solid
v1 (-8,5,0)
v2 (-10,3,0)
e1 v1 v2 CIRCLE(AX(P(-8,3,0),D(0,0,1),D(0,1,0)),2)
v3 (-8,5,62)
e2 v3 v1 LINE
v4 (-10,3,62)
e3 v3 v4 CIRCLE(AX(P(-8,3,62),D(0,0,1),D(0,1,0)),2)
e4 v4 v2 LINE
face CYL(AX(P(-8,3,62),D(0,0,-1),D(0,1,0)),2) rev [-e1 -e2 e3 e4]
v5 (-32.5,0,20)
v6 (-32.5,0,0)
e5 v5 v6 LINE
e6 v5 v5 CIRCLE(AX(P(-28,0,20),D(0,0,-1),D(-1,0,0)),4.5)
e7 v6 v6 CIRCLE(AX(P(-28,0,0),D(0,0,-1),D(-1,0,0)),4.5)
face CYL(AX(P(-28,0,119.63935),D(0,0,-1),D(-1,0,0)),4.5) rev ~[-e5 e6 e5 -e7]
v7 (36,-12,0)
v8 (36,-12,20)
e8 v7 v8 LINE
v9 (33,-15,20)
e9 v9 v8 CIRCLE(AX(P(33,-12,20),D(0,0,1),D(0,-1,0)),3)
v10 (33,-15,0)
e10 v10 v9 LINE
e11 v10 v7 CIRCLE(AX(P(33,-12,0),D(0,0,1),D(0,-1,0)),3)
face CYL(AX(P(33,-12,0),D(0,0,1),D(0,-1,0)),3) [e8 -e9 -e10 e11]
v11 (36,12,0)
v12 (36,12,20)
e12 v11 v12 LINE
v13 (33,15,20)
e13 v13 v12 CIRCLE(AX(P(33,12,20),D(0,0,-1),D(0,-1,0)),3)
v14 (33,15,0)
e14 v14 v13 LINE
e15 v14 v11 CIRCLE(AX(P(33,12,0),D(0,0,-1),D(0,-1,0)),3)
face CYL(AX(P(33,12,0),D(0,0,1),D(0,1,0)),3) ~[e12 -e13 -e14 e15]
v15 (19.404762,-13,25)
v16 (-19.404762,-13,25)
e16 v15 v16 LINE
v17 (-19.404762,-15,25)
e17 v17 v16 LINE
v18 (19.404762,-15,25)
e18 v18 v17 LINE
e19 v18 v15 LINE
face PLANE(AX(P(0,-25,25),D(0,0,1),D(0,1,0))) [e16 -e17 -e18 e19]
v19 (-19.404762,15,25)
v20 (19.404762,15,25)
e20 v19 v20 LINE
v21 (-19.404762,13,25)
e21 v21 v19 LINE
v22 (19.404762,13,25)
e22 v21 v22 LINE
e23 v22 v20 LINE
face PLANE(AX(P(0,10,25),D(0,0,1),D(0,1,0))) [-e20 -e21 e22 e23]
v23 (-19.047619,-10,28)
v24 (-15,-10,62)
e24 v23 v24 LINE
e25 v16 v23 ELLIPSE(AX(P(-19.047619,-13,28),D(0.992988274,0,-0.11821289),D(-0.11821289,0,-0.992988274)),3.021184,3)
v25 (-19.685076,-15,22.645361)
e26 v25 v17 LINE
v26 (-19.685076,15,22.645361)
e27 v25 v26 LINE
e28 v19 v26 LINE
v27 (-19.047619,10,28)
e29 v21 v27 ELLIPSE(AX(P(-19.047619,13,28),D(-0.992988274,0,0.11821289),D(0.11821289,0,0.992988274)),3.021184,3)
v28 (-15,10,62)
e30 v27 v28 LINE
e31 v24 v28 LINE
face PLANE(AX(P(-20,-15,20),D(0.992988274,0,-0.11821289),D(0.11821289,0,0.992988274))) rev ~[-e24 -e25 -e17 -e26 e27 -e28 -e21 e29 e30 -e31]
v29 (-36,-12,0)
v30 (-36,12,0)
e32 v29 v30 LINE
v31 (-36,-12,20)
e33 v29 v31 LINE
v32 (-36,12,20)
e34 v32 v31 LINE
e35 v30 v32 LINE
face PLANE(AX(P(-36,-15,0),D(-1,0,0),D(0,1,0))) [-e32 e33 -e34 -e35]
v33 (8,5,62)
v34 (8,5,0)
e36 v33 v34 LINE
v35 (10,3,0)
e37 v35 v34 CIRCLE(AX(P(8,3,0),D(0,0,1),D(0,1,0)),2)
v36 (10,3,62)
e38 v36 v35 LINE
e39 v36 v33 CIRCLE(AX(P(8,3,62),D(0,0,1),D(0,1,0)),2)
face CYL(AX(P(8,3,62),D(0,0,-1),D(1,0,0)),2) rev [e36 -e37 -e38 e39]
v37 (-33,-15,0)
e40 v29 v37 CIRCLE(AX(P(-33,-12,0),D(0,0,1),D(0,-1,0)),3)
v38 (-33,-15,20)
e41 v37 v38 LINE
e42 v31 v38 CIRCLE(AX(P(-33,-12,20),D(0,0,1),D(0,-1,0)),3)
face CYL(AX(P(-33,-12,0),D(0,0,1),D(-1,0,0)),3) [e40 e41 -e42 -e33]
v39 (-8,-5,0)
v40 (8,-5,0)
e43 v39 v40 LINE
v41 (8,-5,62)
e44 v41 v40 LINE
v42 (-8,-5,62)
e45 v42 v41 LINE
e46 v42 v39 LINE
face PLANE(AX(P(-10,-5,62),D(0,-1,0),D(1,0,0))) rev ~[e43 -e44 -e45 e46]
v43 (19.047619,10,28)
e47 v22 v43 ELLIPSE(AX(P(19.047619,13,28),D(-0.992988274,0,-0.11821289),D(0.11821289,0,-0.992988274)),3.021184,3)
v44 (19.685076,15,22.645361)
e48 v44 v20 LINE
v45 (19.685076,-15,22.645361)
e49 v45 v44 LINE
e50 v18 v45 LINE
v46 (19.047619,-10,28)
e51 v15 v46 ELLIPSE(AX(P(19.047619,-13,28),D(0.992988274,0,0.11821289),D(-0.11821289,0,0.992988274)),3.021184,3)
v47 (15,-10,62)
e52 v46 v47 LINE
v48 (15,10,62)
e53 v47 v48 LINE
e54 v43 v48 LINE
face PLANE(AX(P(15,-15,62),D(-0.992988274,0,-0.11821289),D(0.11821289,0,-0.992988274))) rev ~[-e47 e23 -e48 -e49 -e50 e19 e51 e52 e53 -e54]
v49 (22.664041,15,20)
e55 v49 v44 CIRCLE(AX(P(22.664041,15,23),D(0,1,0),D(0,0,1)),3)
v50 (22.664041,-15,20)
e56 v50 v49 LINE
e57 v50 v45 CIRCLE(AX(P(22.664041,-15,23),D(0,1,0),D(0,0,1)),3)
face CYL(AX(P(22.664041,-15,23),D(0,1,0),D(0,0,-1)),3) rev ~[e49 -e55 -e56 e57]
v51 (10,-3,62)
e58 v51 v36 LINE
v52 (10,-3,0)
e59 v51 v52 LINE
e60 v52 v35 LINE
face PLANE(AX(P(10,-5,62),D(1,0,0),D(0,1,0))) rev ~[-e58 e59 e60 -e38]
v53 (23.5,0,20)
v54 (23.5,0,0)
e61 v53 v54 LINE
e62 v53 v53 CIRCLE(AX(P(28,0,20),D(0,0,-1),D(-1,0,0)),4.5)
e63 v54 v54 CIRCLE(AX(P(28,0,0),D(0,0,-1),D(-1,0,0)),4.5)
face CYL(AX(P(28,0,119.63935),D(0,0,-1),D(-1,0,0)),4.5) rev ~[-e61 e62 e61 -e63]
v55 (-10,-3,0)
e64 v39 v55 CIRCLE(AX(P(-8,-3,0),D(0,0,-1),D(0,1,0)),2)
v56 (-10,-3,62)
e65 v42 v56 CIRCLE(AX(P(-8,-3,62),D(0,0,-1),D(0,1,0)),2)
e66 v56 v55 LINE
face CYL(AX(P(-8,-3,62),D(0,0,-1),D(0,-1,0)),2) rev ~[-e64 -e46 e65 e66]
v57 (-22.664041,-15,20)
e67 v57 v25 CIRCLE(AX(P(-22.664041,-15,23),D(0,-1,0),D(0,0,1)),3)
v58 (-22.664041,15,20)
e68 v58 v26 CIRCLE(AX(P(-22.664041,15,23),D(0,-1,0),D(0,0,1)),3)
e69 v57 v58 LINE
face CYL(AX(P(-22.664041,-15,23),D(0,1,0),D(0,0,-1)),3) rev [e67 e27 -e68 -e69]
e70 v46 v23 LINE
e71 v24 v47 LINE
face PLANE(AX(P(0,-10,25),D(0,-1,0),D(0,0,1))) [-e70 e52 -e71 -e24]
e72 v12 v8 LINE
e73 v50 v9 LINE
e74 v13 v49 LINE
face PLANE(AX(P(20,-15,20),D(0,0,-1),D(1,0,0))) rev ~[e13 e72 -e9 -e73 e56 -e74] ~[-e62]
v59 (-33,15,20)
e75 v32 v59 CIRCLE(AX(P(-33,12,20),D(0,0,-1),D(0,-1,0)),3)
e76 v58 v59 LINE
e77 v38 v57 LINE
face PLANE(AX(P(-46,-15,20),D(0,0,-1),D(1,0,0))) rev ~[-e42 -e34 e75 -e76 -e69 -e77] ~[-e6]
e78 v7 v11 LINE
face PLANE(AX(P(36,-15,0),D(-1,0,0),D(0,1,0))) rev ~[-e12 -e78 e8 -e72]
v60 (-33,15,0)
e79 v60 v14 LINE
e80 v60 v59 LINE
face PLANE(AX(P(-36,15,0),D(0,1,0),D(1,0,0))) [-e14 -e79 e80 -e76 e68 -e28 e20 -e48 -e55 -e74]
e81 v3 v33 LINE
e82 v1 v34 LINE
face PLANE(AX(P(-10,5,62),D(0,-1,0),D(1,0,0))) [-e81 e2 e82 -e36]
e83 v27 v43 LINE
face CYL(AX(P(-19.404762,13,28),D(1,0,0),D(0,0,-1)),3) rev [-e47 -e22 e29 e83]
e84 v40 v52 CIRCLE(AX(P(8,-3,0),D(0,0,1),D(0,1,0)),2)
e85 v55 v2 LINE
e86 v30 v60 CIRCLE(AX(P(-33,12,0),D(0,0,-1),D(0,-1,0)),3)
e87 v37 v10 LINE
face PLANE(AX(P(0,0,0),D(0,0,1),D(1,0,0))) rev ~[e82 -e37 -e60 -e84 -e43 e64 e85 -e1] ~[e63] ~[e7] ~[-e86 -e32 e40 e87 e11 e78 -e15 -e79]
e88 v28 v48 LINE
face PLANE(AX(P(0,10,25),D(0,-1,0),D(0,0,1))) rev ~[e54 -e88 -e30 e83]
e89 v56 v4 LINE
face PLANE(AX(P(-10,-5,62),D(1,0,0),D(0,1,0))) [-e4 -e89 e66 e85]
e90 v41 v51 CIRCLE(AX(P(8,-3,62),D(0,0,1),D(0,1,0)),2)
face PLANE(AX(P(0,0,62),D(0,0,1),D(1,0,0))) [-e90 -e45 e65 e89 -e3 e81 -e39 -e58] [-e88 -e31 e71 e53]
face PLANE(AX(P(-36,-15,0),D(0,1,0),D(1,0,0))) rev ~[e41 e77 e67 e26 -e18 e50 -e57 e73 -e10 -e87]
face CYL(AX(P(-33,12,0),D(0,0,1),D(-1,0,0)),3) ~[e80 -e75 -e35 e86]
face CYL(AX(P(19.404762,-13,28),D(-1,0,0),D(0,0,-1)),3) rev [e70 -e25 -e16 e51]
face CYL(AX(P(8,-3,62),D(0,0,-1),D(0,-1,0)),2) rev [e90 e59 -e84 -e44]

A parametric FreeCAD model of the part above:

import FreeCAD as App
import Part
import Sketcher

V = App.Vector


def edges_at(feature, points):
    """Names of the edges that pass closest to the given points."""
    edges = feature.Shape.Edges
    near = lambda p: min(range(len(edges)), key=lambda i: edges[i].distToShape(Part.Vertex(*p))[0])
    return sorted({f"Edge{near(p) + 1}" for p in points})

doc = App.newDocument("Part")
params = doc.addObject("Spreadsheet::Sheet", "Params")
for row, (alias, value) in enumerate([
    ("sketch1_width", "72 mm"),
    ("sketch1_height", "30 mm"),
    ("pad1_length", "62 mm"),
    ("sketch2_width", "31 mm"),
    ("sketch2_width2", "26 mm"),
    ("sketch2_height", "52 mm"),
    ("sketch2_height2", "10 mm"),
    ("sketch3_width", "15 mm"),
    ("sketch3_height", "47 mm"),
    ("sketch4_width", "20 mm"),
    ("sketch4_height", "10 mm"),
    ("sketch5_diameter", "9 mm"),
    ("hole_diameter", "9 mm"),
    ("fillet_radius", "3 mm"),
    ("fillet2_radius", "3 mm"),
    ("fillet3_radius", "3 mm"),
    ("fillet4_radius", "2 mm"),
], start=1):
    params.set(f"A{row}", alias)
    params.set(f"B{row}", "=" + value)
    params.setAlias(f"B{row}", alias)

body = doc.addObject("PartDesign::Body", "Body")

# Sketch on XY plane
sketch1 = body.newObject("Sketcher::SketchObject", "Sketch")
sketch1.AttachmentSupport = (doc.getObject("XY_Plane"), [""])
sketch1.MapMode = "FlatFace"
sketch1.addGeometry(Part.LineSegment(V(-36, 15, 0), V(-36, -15, 0)), False)
sketch1.addGeometry(Part.LineSegment(V(-36, -15, 0), V(36, -15, 0)), False)
sketch1.addGeometry(Part.LineSegment(V(36, -15, 0), V(36, 15, 0)), False)
sketch1.addGeometry(Part.LineSegment(V(36, 15, 0), V(-36, 15, 0)), False)
sketch1.addConstraint(Sketcher.Constraint("Coincident", 0, 2, 1, 1))
sketch1.addConstraint(Sketcher.Constraint("Coincident", 1, 2, 2, 1))
sketch1.addConstraint(Sketcher.Constraint("Coincident", 2, 2, 3, 1))
sketch1.addConstraint(Sketcher.Constraint("Coincident", 3, 2, 0, 1))
sketch1.addConstraint(Sketcher.Constraint("Vertical", 0))
sketch1.addConstraint(Sketcher.Constraint("Horizontal", 1))
sketch1.addConstraint(Sketcher.Constraint("Vertical", 2))
sketch1.addConstraint(Sketcher.Constraint("Horizontal", 3))
sketch1.addConstraint(Sketcher.Constraint("Symmetric", 0, 2, 2, 2, -1, 1))
sketch1.addConstraint(Sketcher.Constraint("DistanceX", 1, 1, 1, 2, 72.0))
sketch1.addConstraint(Sketcher.Constraint("DistanceY", 0, 2, 0, 1, 30.0))
sketch1.setExpression("Constraints[9]", "Params.sketch1_width")
sketch1.setExpression("Constraints[10]", "Params.sketch1_height")
pad1 = body.newObject("PartDesign::Pad", "Pad")
pad1.Profile = sketch1
pad1.setExpression("Length", "Params.pad1_length")

# Sketch on XZ plane
sketch2 = body.newObject("Sketcher::SketchObject", "Sketch001")
sketch2.AttachmentSupport = (doc.getObject("XZ_Plane"), [""])
sketch2.MapMode = "FlatFace"
sketch2.AttachmentOffset = App.Placement(V(0, 0, 15), App.Rotation())
sketch2.addGeometry(Part.LineSegment(V(-15, 72, 0), V(-46, 72, 0)), False)
sketch2.addGeometry(Part.LineSegment(V(-46, 72, 0), V(-46, 20, 0)), False)
sketch2.addGeometry(Part.LineSegment(V(-46, 20, 0), V(-20, 20, 0)), False)
sketch2.addGeometry(Part.LineSegment(V(-20, 20, 0), V(-15, 62, 0)), False)
sketch2.addGeometry(Part.LineSegment(V(-15, 62, 0), V(-15, 72, 0)), False)
sketch2.addGeometry(Part.LineSegment(V(46, 72, 0), V(15, 72, 0)), False)
sketch2.addGeometry(Part.LineSegment(V(15, 72, 0), V(15, 62, 0)), False)
sketch2.addGeometry(Part.LineSegment(V(15, 62, 0), V(20, 20, 0)), False)
sketch2.addGeometry(Part.LineSegment(V(20, 20, 0), V(46, 20, 0)), False)
sketch2.addGeometry(Part.LineSegment(V(46, 20, 0), V(46, 72, 0)), False)
sketch2.addConstraint(Sketcher.Constraint("Coincident", 0, 2, 1, 1))
sketch2.addConstraint(Sketcher.Constraint("Coincident", 1, 2, 2, 1))
sketch2.addConstraint(Sketcher.Constraint("Coincident", 2, 2, 3, 1))
sketch2.addConstraint(Sketcher.Constraint("Coincident", 3, 2, 4, 1))
sketch2.addConstraint(Sketcher.Constraint("Coincident", 4, 2, 0, 1))
sketch2.addConstraint(Sketcher.Constraint("Coincident", 5, 2, 6, 1))
sketch2.addConstraint(Sketcher.Constraint("Coincident", 6, 2, 7, 1))
sketch2.addConstraint(Sketcher.Constraint("Coincident", 7, 2, 8, 1))
sketch2.addConstraint(Sketcher.Constraint("Coincident", 8, 2, 9, 1))
sketch2.addConstraint(Sketcher.Constraint("Coincident", 9, 2, 5, 1))
sketch2.addConstraint(Sketcher.Constraint("Horizontal", 0))
sketch2.addConstraint(Sketcher.Constraint("Vertical", 1))
sketch2.addConstraint(Sketcher.Constraint("Horizontal", 2))
sketch2.addConstraint(Sketcher.Constraint("Vertical", 4))
sketch2.addConstraint(Sketcher.Constraint("Horizontal", 5))
sketch2.addConstraint(Sketcher.Constraint("Vertical", 6))
sketch2.addConstraint(Sketcher.Constraint("Horizontal", 8))
sketch2.addConstraint(Sketcher.Constraint("Vertical", 9))
sketch2.addConstraint(Sketcher.Constraint("Symmetric", 4, 2, 5, 2, -2))
sketch2.addConstraint(Sketcher.Constraint("Symmetric", 2, 2, 7, 2, -2))
sketch2.addConstraint(Sketcher.Constraint("Horizontal", 3, 2, 6, 2))
sketch2.addConstraint(Sketcher.Constraint("Equal", 0, 5))
sketch2.addConstraint(Sketcher.Constraint("DistanceX", 0, 2, 0, 1, 31.0))
sketch2.addConstraint(Sketcher.Constraint("DistanceX", 2, 1, 2, 2, 26.0))
sketch2.addConstraint(Sketcher.Constraint("DistanceY", 1, 2, 1, 1, 52.0))
sketch2.addConstraint(Sketcher.Constraint("DistanceY", 4, 1, 4, 2, 10.0))
sketch2.addConstraint(Sketcher.Constraint("DistanceX", 0, 2, -1, 1, 46.0))
sketch2.addConstraint(Sketcher.Constraint("DistanceY", -1, 1, 0, 2, 72.0))
sketch2.setExpression("Constraints[22]", "Params.sketch2_width")
sketch2.setExpression("Constraints[23]", "Params.sketch2_width2")
sketch2.setExpression("Constraints[24]", "Params.sketch2_height")
sketch2.setExpression("Constraints[25]", "Params.sketch2_height2")
pocket1 = body.newObject("PartDesign::Pocket", "Pocket")
pocket1.Profile = sketch2
pocket1.Type = "ThroughAll"

# Sketch on YZ plane
sketch3 = body.newObject("Sketcher::SketchObject", "Sketch002")
sketch3.AttachmentSupport = (doc.getObject("YZ_Plane"), [""])
sketch3.MapMode = "FlatFace"
sketch3.addGeometry(Part.LineSegment(V(-25, 72, 0), V(-25, 25, 0)), False)
sketch3.addGeometry(Part.LineSegment(V(-25, 25, 0), V(-10, 25, 0)), False)
sketch3.addGeometry(Part.LineSegment(V(-10, 25, 0), V(-10, 72, 0)), False)
sketch3.addGeometry(Part.LineSegment(V(-10, 72, 0), V(-25, 72, 0)), False)
sketch3.addGeometry(Part.LineSegment(V(10, 72, 0), V(10, 25, 0)), False)
sketch3.addGeometry(Part.LineSegment(V(10, 25, 0), V(25, 25, 0)), False)
sketch3.addGeometry(Part.LineSegment(V(25, 25, 0), V(25, 72, 0)), False)
sketch3.addGeometry(Part.LineSegment(V(25, 72, 0), V(10, 72, 0)), False)
sketch3.addConstraint(Sketcher.Constraint("Coincident", 0, 2, 1, 1))
sketch3.addConstraint(Sketcher.Constraint("Coincident", 1, 2, 2, 1))
sketch3.addConstraint(Sketcher.Constraint("Coincident", 2, 2, 3, 1))
sketch3.addConstraint(Sketcher.Constraint("Coincident", 3, 2, 0, 1))
sketch3.addConstraint(Sketcher.Constraint("Coincident", 4, 2, 5, 1))
sketch3.addConstraint(Sketcher.Constraint("Coincident", 5, 2, 6, 1))
sketch3.addConstraint(Sketcher.Constraint("Coincident", 6, 2, 7, 1))
sketch3.addConstraint(Sketcher.Constraint("Coincident", 7, 2, 4, 1))
sketch3.addConstraint(Sketcher.Constraint("Vertical", 0))
sketch3.addConstraint(Sketcher.Constraint("Horizontal", 1))
sketch3.addConstraint(Sketcher.Constraint("Vertical", 2))
sketch3.addConstraint(Sketcher.Constraint("Horizontal", 3))
sketch3.addConstraint(Sketcher.Constraint("Vertical", 4))
sketch3.addConstraint(Sketcher.Constraint("Horizontal", 5))
sketch3.addConstraint(Sketcher.Constraint("Vertical", 6))
sketch3.addConstraint(Sketcher.Constraint("Horizontal", 7))
sketch3.addConstraint(Sketcher.Constraint("Symmetric", 1, 2, 4, 2, -2))
sketch3.addConstraint(Sketcher.Constraint("Symmetric", 3, 2, 6, 2, -2))
sketch3.addConstraint(Sketcher.Constraint("DistanceX", 1, 1, 1, 2, 15.0))
sketch3.addConstraint(Sketcher.Constraint("DistanceY", 0, 2, 0, 1, 47.0))
sketch3.addConstraint(Sketcher.Constraint("DistanceX", 0, 2, -1, 1, 25.0))
sketch3.addConstraint(Sketcher.Constraint("DistanceY", -1, 1, 0, 2, 25.0))
sketch3.setExpression("Constraints[18]", "Params.sketch3_width")
sketch3.setExpression("Constraints[19]", "Params.sketch3_height")
pocket2 = body.newObject("PartDesign::Pocket", "Pocket001")
pocket2.Profile = sketch3
pocket2.Type = "ThroughAll"
pocket2.Midplane = True

# Sketch on XY plane
sketch4 = body.newObject("Sketcher::SketchObject", "Sketch003")
sketch4.AttachmentSupport = (doc.getObject("XY_Plane"), [""])
sketch4.MapMode = "FlatFace"
sketch4.AttachmentOffset = App.Placement(V(0, 0, 62), App.Rotation())
sketch4.addGeometry(Part.LineSegment(V(-10, 5, 0), V(-10, -5, 0)), False)
sketch4.addGeometry(Part.LineSegment(V(-10, -5, 0), V(10, -5, 0)), False)
sketch4.addGeometry(Part.LineSegment(V(10, -5, 0), V(10, 5, 0)), False)
sketch4.addGeometry(Part.LineSegment(V(10, 5, 0), V(-10, 5, 0)), False)
sketch4.addConstraint(Sketcher.Constraint("Coincident", 0, 2, 1, 1))
sketch4.addConstraint(Sketcher.Constraint("Coincident", 1, 2, 2, 1))
sketch4.addConstraint(Sketcher.Constraint("Coincident", 2, 2, 3, 1))
sketch4.addConstraint(Sketcher.Constraint("Coincident", 3, 2, 0, 1))
sketch4.addConstraint(Sketcher.Constraint("Vertical", 0))
sketch4.addConstraint(Sketcher.Constraint("Horizontal", 1))
sketch4.addConstraint(Sketcher.Constraint("Vertical", 2))
sketch4.addConstraint(Sketcher.Constraint("Horizontal", 3))
sketch4.addConstraint(Sketcher.Constraint("Symmetric", 0, 2, 2, 2, -1, 1))
sketch4.addConstraint(Sketcher.Constraint("DistanceX", 1, 1, 1, 2, 20.0))
sketch4.addConstraint(Sketcher.Constraint("DistanceY", 0, 2, 0, 1, 10.0))
sketch4.setExpression("Constraints[9]", "Params.sketch4_width")
sketch4.setExpression("Constraints[10]", "Params.sketch4_height")
pocket3 = body.newObject("PartDesign::Pocket", "Pocket002")
pocket3.Profile = sketch4
pocket3.Type = "ThroughAll"

# Sketch on XY plane
sketch5 = body.newObject("Sketcher::SketchObject", "Sketch004")
sketch5.AttachmentSupport = (doc.getObject("XY_Plane"), [""])
sketch5.MapMode = "FlatFace"
sketch5.AttachmentOffset = App.Placement(V(0, 0, 20), App.Rotation())
sketch5.addGeometry(Part.Circle(V(-28, 0, 0), V(0, 0, 1), 4.5), False)
sketch5.addGeometry(Part.Circle(V(28, 0, 0), V(0, 0, 1), 4.5), False)
sketch5.addConstraint(Sketcher.Constraint("Equal", 0, 1))
sketch5.addConstraint(Sketcher.Constraint("Symmetric", 0, 3, 1, 3, -1, 1))
sketch5.addConstraint(Sketcher.Constraint("PointOnObject", 0, 3, -1))
sketch5.addConstraint(Sketcher.Constraint("Diameter", 0, 9.0))
sketch5.addConstraint(Sketcher.Constraint("DistanceX", 0, 3, -1, 1, 28.0))
sketch5.setExpression("Constraints[3]", "Params.sketch5_diameter")
doc.recompute()
hole = body.newObject("PartDesign::Hole", "Hole")
hole.Profile = sketch5
hole.ThreadType = "None"
hole.setExpression("Diameter", "Params.hole_diameter")
hole.DepthType = "ThroughAll"
doc.recompute()

fillet = body.newObject("PartDesign::Fillet", "Fillet")
fillet.Base = (hole, edges_at(hole, [
    (-36, 15, 10),
    (36, -15, 10),
    (36, 15, 10),
    (-36, -15, 10),
]))
fillet.setExpression("Radius", "Params.fillet_radius")
doc.recompute()

fillet2 = body.newObject("PartDesign::Fillet", "Fillet001")
fillet2.Base = (fillet, edges_at(fillet, [(-20, 0, 20), (20, 0, 20)]))
fillet2.setExpression("Radius", "Params.fillet2_radius")
doc.recompute()

fillet3 = body.newObject("PartDesign::Fillet", "Fillet002")
fillet3.Base = (fillet2, edges_at(fillet2, [(0, 10, 25), (0, -10, 25)]))
fillet3.setExpression("Radius", "Params.fillet3_radius")
doc.recompute()

fillet4 = body.newObject("PartDesign::Fillet", "Fillet003")
fillet4.Base = (fillet3, edges_at(fillet3, [
    (10, 5, 31),
    (10, -5, 31),
    (-10, -5, 31),
    (-10, 5, 31),
]))
fillet4.setExpression("Radius", "Params.fillet4_radius")

doc.recompute()
